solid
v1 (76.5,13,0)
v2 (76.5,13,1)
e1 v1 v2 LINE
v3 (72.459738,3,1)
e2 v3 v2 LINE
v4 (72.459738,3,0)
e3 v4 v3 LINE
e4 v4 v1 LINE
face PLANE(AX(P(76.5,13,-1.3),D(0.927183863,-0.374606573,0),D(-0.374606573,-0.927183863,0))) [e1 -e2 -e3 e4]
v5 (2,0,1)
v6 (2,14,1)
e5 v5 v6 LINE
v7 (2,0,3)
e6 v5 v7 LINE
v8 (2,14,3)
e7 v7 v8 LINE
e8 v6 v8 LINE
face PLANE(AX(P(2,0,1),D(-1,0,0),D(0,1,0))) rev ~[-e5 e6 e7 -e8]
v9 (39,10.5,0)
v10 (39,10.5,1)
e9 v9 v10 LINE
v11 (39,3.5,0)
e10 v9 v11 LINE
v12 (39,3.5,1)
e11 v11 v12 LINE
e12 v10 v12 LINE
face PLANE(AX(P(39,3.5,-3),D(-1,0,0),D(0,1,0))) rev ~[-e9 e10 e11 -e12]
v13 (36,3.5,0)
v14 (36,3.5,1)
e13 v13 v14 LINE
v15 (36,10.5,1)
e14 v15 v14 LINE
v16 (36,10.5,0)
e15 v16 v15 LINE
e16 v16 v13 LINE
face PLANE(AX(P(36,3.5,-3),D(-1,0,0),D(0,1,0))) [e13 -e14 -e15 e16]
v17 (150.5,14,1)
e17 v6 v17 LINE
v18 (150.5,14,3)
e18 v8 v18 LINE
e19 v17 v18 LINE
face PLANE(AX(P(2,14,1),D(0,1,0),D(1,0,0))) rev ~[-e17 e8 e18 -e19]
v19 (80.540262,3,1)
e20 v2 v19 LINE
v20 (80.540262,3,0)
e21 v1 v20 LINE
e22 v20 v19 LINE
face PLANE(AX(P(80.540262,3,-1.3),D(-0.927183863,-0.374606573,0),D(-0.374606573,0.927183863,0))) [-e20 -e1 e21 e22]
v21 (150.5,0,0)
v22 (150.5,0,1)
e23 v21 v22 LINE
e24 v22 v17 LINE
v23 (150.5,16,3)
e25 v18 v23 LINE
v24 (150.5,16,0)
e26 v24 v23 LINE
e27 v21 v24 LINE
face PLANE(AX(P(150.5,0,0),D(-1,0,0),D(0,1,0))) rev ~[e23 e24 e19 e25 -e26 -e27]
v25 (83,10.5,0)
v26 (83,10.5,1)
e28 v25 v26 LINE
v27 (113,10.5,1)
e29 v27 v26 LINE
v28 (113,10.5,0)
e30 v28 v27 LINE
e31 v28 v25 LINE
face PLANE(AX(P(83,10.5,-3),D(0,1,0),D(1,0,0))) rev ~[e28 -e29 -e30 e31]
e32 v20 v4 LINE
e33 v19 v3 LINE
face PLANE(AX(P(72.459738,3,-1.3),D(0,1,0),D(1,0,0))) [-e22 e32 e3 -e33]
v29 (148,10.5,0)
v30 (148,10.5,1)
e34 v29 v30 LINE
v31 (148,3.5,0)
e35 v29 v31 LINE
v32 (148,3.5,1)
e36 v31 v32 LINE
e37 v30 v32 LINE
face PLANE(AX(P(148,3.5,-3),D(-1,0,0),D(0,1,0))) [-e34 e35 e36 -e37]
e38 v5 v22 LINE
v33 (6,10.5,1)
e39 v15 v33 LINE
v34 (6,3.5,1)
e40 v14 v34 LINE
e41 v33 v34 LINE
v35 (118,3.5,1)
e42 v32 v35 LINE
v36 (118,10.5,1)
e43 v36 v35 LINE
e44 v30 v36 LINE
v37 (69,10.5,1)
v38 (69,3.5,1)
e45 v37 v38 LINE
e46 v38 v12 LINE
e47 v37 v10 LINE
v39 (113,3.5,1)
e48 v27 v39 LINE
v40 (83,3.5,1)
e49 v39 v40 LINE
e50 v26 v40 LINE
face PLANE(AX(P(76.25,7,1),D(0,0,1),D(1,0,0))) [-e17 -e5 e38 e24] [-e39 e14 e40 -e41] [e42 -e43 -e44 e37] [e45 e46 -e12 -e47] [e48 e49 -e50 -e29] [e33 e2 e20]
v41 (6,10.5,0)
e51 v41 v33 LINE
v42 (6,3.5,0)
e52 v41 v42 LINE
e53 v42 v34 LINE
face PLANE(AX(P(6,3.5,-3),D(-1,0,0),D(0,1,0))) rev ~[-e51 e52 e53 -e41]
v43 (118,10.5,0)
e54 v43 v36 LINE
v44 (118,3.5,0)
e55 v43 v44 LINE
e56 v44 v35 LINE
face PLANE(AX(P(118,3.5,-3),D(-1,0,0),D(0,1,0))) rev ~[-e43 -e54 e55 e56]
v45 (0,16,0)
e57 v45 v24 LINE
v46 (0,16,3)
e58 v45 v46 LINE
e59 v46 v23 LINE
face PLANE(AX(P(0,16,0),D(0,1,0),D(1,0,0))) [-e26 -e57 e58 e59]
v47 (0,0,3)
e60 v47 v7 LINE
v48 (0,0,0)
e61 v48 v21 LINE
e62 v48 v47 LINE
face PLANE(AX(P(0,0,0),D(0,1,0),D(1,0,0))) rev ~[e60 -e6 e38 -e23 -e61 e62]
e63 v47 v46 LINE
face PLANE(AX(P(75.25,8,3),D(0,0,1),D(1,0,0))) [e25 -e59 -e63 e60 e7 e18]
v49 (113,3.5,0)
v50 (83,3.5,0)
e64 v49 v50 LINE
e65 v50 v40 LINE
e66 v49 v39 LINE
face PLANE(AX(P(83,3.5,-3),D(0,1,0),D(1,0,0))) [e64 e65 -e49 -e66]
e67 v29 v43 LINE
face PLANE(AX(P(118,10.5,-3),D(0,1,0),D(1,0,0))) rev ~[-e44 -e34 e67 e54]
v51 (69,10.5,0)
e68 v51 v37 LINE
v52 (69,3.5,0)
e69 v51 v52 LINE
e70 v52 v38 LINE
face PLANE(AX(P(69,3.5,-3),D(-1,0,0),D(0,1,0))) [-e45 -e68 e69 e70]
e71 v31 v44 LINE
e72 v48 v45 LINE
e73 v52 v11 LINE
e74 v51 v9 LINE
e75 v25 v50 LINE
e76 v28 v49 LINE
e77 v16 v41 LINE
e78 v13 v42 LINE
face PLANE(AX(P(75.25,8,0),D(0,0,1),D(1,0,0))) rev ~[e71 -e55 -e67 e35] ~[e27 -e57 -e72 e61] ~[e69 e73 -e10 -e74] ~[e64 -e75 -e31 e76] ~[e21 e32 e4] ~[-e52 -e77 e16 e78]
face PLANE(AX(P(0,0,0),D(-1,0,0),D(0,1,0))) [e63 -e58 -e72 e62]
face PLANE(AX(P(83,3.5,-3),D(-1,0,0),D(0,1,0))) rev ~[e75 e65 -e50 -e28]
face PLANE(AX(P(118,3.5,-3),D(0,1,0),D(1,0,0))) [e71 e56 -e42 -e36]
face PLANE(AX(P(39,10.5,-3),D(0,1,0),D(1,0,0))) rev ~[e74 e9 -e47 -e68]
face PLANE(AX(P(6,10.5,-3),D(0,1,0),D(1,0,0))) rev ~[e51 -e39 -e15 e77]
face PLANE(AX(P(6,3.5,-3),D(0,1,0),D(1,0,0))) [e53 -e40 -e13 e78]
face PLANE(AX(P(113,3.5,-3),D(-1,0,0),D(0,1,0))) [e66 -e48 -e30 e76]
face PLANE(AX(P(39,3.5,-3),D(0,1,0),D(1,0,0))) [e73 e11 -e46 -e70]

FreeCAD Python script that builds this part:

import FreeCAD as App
import Part
import Sketcher

V = App.Vector
Q = App.Units.Quantity

doc = App.newDocument("Part")
body = doc.addObject("PartDesign::Body", "Body")

sketch1 = body.newObject("Sketcher::SketchObject", "Sketch")
sketch1.AttachmentSupport = (doc.getObject("XY_Plane"), [""])
sketch1.MapMode = "FlatFace"
sketch1.AttachmentOffset = App.Placement(V(0, 0, -3), App.Rotation())
sketch1.addGeometry([
    Part.LineSegment(V(6, 10, 0), V(6, 4, 0)),
    Part.LineSegment(V(6, 4, 0), V(36, 4, 0)),
    Part.LineSegment(V(36, 4, 0), V(36, 10, 0)),
    Part.LineSegment(V(36, 10, 0), V(6, 10, 0)),
], False)
sketch1.addConstraint([
    Sketcher.Constraint("Coincident", 0, 2, 1, 1),
    Sketcher.Constraint("Coincident", 1, 2, 2, 1),
    Sketcher.Constraint("Coincident", 2, 2, 3, 1),
    Sketcher.Constraint("Coincident", 3, 2, 0, 1),
    Sketcher.Constraint("Vertical", 0),
    Sketcher.Constraint("Horizontal", 1),
    Sketcher.Constraint("Vertical", 2),
    Sketcher.Constraint("Horizontal", 3),
    Sketcher.Constraint("DistanceX", 1, 1, 1, 2, Q("30 mm")),
    Sketcher.Constraint("DistanceY", 0, 2, 0, 1, Q("7 mm")),
    Sketcher.Constraint("DistanceX", -1, 1, 0, 2, Q("6 mm")),
    Sketcher.Constraint("DistanceY", -1, 1, 0, 2, Q("3.5 mm")),
])
pad1 = body.newObject("PartDesign::Pad", "Pad")
pad1.Profile = sketch1
pad1.Length = 10
body2 = doc.addObject("PartDesign::Body", "Body001")

sketch2 = body2.newObject("Sketcher::SketchObject", "Sketch001")
sketch2.AttachmentSupport = (doc.getObject("XY_Plane001"), [""])
sketch2.MapMode = "FlatFace"
sketch2.AttachmentOffset = App.Placement(V(0, 0, -3), App.Rotation())
sketch2.addGeometry([
    Part.LineSegment(V(83, 10, 0), V(83, 4, 0)),
    Part.LineSegment(V(83, 4, 0), V(113, 4, 0)),
    Part.LineSegment(V(113, 4, 0), V(113, 10, 0)),
    Part.LineSegment(V(113, 10, 0), V(83, 10, 0)),
], False)
sketch2.addConstraint([
    Sketcher.Constraint("Coincident", 0, 2, 1, 1),
    Sketcher.Constraint("Coincident", 1, 2, 2, 1),
    Sketcher.Constraint("Coincident", 2, 2, 3, 1),
    Sketcher.Constraint("Coincident", 3, 2, 0, 1),
    Sketcher.Constraint("Vertical", 0),
    Sketcher.Constraint("Horizontal", 1),
    Sketcher.Constraint("Vertical", 2),
    Sketcher.Constraint("Horizontal", 3),
    Sketcher.Constraint("DistanceX", 1, 1, 1, 2, Q("30 mm")),
    Sketcher.Constraint("DistanceY", 0, 2, 0, 1, Q("7 mm")),
    Sketcher.Constraint("DistanceX", -1, 1, 0, 2, Q("83 mm")),
    Sketcher.Constraint("DistanceY", -1, 1, 0, 2, Q("3.5 mm")),
])
pad2 = body2.newObject("PartDesign::Pad", "Pad001")
pad2.Profile = sketch2
pad2.Length = 10
body3 = doc.addObject("PartDesign::Body", "Body002")

sketch3 = body3.newObject("Sketcher::SketchObject", "Sketch002")
sketch3.AttachmentSupport = (doc.getObject("XY_Plane002"), [""])
sketch3.MapMode = "FlatFace"
sketch3.AttachmentOffset = App.Placement(V(0, 0, -3), App.Rotation())
sketch3.addGeometry([
    Part.LineSegment(V(118, 10, 0), V(118, 4, 0)),
    Part.LineSegment(V(118, 4, 0), V(148, 4, 0)),
    Part.LineSegment(V(148, 4, 0), V(148, 10, 0)),
    Part.LineSegment(V(148, 10, 0), V(118, 10, 0)),
], False)
sketch3.addConstraint([
    Sketcher.Constraint("Coincident", 0, 2, 1, 1),
    Sketcher.Constraint("Coincident", 1, 2, 2, 1),
    Sketcher.Constraint("Coincident", 2, 2, 3, 1),
    Sketcher.Constraint("Coincident", 3, 2, 0, 1),
    Sketcher.Constraint("Vertical", 0),
    Sketcher.Constraint("Horizontal", 1),
    Sketcher.Constraint("Vertical", 2),
    Sketcher.Constraint("Horizontal", 3),
    Sketcher.Constraint("DistanceX", 1, 1, 1, 2, Q("30 mm")),
    Sketcher.Constraint("DistanceY", 0, 2, 0, 1, Q("7 mm")),
    Sketcher.Constraint("DistanceX", -1, 1, 0, 2, Q("118 mm")),
    Sketcher.Constraint("DistanceY", -1, 1, 0, 2, Q("3.5 mm")),
])
pad3 = body3.newObject("PartDesign::Pad", "Pad002")
pad3.Profile = sketch3
pad3.Length = 10
body4 = doc.addObject("PartDesign::Body", "Body003")

sketch4 = body4.newObject("Sketcher::SketchObject", "Sketch003")
sketch4.AttachmentSupport = (doc.getObject("XY_Plane003"), [""])
sketch4.MapMode = "FlatFace"
sketch4.AttachmentOffset = App.Placement(V(0, 0, -3), App.Rotation())
sketch4.addGeometry([
    Part.LineSegment(V(39, 10, 0), V(39, 4, 0)),
    Part.LineSegment(V(39, 4, 0), V(69, 4, 0)),
    Part.LineSegment(V(69, 4, 0), V(69, 10, 0)),
    Part.LineSegment(V(69, 10, 0), V(39, 10, 0)),
], False)
sketch4.addConstraint([
    Sketcher.Constraint("Coincident", 0, 2, 1, 1),
    Sketcher.Constraint("Coincident", 1, 2, 2, 1),
    Sketcher.Constraint("Coincident", 2, 2, 3, 1),
    Sketcher.Constraint("Coincident", 3, 2, 0, 1),
    Sketcher.Constraint("Vertical", 0),
    Sketcher.Constraint("Horizontal", 1),
    Sketcher.Constraint("Vertical", 2),
    Sketcher.Constraint("Horizontal", 3),
    Sketcher.Constraint("DistanceX", 1, 1, 1, 2, Q("30 mm")),
    Sketcher.Constraint("DistanceY", 0, 2, 0, 1, Q("7 mm")),
    Sketcher.Constraint("DistanceX", -1, 1, 0, 2, Q("39 mm")),
    Sketcher.Constraint("DistanceY", -1, 1, 0, 2, Q("3.5 mm")),
])
pad4 = body4.newObject("PartDesign::Pad", "Pad003")
pad4.Profile = sketch4
pad4.Length = 10
body5 = doc.addObject("PartDesign::Body", "Body004")

sketch5 = body5.newObject("Sketcher::SketchObject", "Sketch004")
sketch5.AttachmentSupport = (doc.getObject("XY_Plane004"), [""])
sketch5.MapMode = "FlatFace"
sketch5.AttachmentOffset = App.Placement(V(0, 0, 1), App.Rotation())
sketch5.addGeometry([
    Part.LineSegment(V(76, 12, 0), V(72, 2, 0)),
    Part.LineSegment(V(72, 2, 0), V(81, 2, 0)),
    Part.LineSegment(V(81, 2, 0), V(76, 12, 0)),
], False)
sketch5.addConstraint([
    Sketcher.Constraint("Coincident", 0, 2, 1, 1),
    Sketcher.Constraint("Coincident", 1, 2, 2, 1),
    Sketcher.Constraint("Coincident", 2, 2, 0, 1),
    Sketcher.Constraint("Horizontal", 1),
    Sketcher.Constraint("Equal", 0, 2),
    Sketcher.Constraint("Angle", 0, Q("-111.999999 deg")),
    Sketcher.Constraint("DistanceY", -1, 1, 0, 2, Q("2 mm")),
    Sketcher.Constraint("DistanceY", -1, 1, 2, 2, Q("12 mm")),
    Sketcher.Constraint("DistanceX", -1, 1, 2, 2, Q("76.5 mm")),
])
pad5 = body5.newObject("PartDesign::Pad", "Pad004")
pad5.Profile = sketch5
pad5.Length = 4
body6 = doc.addObject("PartDesign::Body", "Body005")
doc.recompute()

body5.Placement = App.Placement(V(0, 1, -2.3), App.Rotation(V(0, 0, 1), 0))
boolean = body6.newObject("PartDesign::Boolean", "Boolean")
boolean.Type = "Fuse"
boolean.addObjects([body5])
body7 = doc.addObject("PartDesign::Body", "Body006")

sketch6 = body7.newObject("Sketcher::SketchObject", "Sketch005")
sketch6.AttachmentSupport = (doc.getObject("XY_Plane006"), [""])
sketch6.MapMode = "FlatFace"
sketch6.AttachmentOffset = App.Placement(V(0, 0, 1), App.Rotation())
sketch6.addGeometry([
    Part.LineSegment(V(2, 14, 0), V(2, 0, 0)),
    Part.LineSegment(V(2, 0, 0), V(150, 0, 0)),
    Part.LineSegment(V(150, 0, 0), V(150, 14, 0)),
    Part.LineSegment(V(150, 14, 0), V(2, 14, 0)),
], False)
sketch6.addConstraint([
    Sketcher.Constraint("Coincident", 0, 2, 1, 1),
    Sketcher.Constraint("Coincident", 1, 2, 2, 1),
    Sketcher.Constraint("Coincident", 2, 2, 3, 1),
    Sketcher.Constraint("Coincident", 3, 2, 0, 1),
    Sketcher.Constraint("Vertical", 0),
    Sketcher.Constraint("Horizontal", 1),
    Sketcher.Constraint("Vertical", 2),
    Sketcher.Constraint("Horizontal", 3),
    Sketcher.Constraint("PointOnObject", 0, 2, -1),
    Sketcher.Constraint("DistanceY", 0, 2, 0, 1, Q("14 mm")),
    Sketcher.Constraint("DistanceX", 1, 1, 1, 2, Q("148.5 mm")),
    Sketcher.Constraint("DistanceX", -1, 1, 0, 2, Q("2 mm")),
])
pad6 = body7.newObject("PartDesign::Pad", "Pad005")
pad6.Profile = sketch6
pad6.Length = 2
body8 = doc.addObject("PartDesign::Body", "Body007")

sketch7 = body8.newObject("Sketcher::SketchObject", "Sketch006")
sketch7.AttachmentSupport = (doc.getObject("XY_Plane007"), [""])
sketch7.MapMode = "FlatFace"
sketch7.addGeometry([
    Part.LineSegment(V(0, 16, 0), V(0, 0, 0)),
    Part.LineSegment(V(0, 0, 0), V(150, 0, 0)),
    Part.LineSegment(V(150, 0, 0), V(150, 16, 0)),
    Part.LineSegment(V(150, 16, 0), V(0, 16, 0)),
], False)
sketch7.addConstraint([
    Sketcher.Constraint("Coincident", 0, 2, 1, 1),
    Sketcher.Constraint("Coincident", 1, 2, 2, 1),
    Sketcher.Constraint("Coincident", 2, 2, 3, 1),
    Sketcher.Constraint("Coincident", 3, 2, 0, 1),
    Sketcher.Constraint("Vertical", 0),
    Sketcher.Constraint("Horizontal", 1),
    Sketcher.Constraint("Vertical", 2),
    Sketcher.Constraint("Horizontal", 3),
    Sketcher.Constraint("Coincident", 0, 2, -1, 1),
    Sketcher.Constraint("DistanceY", 0, 2, 0, 1, Q("16 mm")),
    Sketcher.Constraint("DistanceX", 1, 1, 1, 2, Q("150.5 mm")),
])
pad7 = body8.newObject("PartDesign::Pad", "Pad006")
pad7.Profile = sketch7
pad7.Length = 3
doc.recompute()

boolean2 = body8.newObject("PartDesign::Boolean", "Boolean001")
boolean2.Type = "Cut"
boolean2.addObjects([body7])
doc.recompute()

boolean3 = body8.newObject("PartDesign::Boolean", "Boolean002")
boolean3.Type = "Cut"
boolean3.addObjects([body6])
doc.recompute()

boolean4 = body8.newObject("PartDesign::Boolean", "Boolean003")
boolean4.Type = "Cut"
boolean4.addObjects([body4])
doc.recompute()

boolean5 = body8.newObject("PartDesign::Boolean", "Boolean004")
boolean5.Type = "Cut"
boolean5.addObjects([body3])
doc.recompute()

boolean6 = body8.newObject("PartDesign::Boolean", "Boolean005")
boolean6.Type = "Cut"
boolean6.addObjects([body2])
doc.recompute()

boolean7 = body8.newObject("PartDesign::Boolean", "Boolean006")
boolean7.Type = "Cut"
boolean7.addObjects([body])

doc.recompute()
